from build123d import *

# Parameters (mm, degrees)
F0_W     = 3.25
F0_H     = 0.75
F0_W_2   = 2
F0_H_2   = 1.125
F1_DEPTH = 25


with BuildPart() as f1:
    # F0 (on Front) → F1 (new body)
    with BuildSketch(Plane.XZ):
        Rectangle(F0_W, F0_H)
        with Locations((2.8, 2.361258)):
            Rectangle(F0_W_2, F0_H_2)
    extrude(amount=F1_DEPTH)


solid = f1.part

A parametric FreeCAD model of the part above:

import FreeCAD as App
import Part
import Sketcher

V = App.Vector


def add_polygon(sketch, points):
    """Adds a closed chain of lines whose ends are joined by coincident constraints."""
    first, n = sketch.GeometryCount, len(points)
    for a, b in zip(points, points[1:] + points[:1]):
        sketch.addGeometry(Part.LineSegment(App.Vector(*a, 0), App.Vector(*b, 0)), False)
    for i in range(n):
        sketch.addConstraint(Sketcher.Constraint("Coincident", first + i, 2, first + (i + 1) % n, 1))

doc = App.newDocument("Part")
body = doc.addObject("PartDesign::Body", "Body")
body.AllowCompound = True

# Sketch on XZ plane
sketch1 = body.newObject("Sketcher::SketchObject", "Sketch")
sketch1.AttachmentSupport = (doc.getObject("XZ_Plane"), [""])
sketch1.MapMode = "FlatFace"
add_polygon(sketch1, [(-1.6, 0.4), (-1.6, -0.4), (1.6, -0.4), (1.6, 0.4)])  # lines 0-3
add_polygon(sketch1, [(1.8, 2.9), (1.8, 1.8), (3.8, 1.8), (3.8, 2.9)])  # lines 4-7
sketch1.addConstraint([
    Sketcher.Constraint("Vertical", 0),
    Sketcher.Constraint("Horizontal", 1),
    Sketcher.Constraint("Vertical", 2),
    Sketcher.Constraint("Horizontal", 3),
    Sketcher.Constraint("Vertical", 4),
    Sketcher.Constraint("Horizontal", 5),
    Sketcher.Constraint("Vertical", 6),
    Sketcher.Constraint("Horizontal", 7),
    Sketcher.Constraint("Symmetric", 0, 2, 2, 2, -1, 1),
    Sketcher.Constraint("DistanceX", 5, 1, 5, 2, 2.0),
    Sketcher.Constraint("DistanceX", 1, 1, 1, 2, 3.25),
    Sketcher.Constraint("DistanceY", 0, 2, 0, 1, 0.75),
    Sketcher.Constraint("DistanceX", -1, 1, 4, 2, 1.8),
    Sketcher.Constraint("DistanceY", 4, 2, 4, 1, 1.125),
    Sketcher.Constraint("DistanceY", -1, 1, 4, 2, 1.798758),
])
pad1 = body.newObject("PartDesign::Pad", "Pad")
pad1.Profile = sketch1
pad1.Length = 25

doc.recompute()
